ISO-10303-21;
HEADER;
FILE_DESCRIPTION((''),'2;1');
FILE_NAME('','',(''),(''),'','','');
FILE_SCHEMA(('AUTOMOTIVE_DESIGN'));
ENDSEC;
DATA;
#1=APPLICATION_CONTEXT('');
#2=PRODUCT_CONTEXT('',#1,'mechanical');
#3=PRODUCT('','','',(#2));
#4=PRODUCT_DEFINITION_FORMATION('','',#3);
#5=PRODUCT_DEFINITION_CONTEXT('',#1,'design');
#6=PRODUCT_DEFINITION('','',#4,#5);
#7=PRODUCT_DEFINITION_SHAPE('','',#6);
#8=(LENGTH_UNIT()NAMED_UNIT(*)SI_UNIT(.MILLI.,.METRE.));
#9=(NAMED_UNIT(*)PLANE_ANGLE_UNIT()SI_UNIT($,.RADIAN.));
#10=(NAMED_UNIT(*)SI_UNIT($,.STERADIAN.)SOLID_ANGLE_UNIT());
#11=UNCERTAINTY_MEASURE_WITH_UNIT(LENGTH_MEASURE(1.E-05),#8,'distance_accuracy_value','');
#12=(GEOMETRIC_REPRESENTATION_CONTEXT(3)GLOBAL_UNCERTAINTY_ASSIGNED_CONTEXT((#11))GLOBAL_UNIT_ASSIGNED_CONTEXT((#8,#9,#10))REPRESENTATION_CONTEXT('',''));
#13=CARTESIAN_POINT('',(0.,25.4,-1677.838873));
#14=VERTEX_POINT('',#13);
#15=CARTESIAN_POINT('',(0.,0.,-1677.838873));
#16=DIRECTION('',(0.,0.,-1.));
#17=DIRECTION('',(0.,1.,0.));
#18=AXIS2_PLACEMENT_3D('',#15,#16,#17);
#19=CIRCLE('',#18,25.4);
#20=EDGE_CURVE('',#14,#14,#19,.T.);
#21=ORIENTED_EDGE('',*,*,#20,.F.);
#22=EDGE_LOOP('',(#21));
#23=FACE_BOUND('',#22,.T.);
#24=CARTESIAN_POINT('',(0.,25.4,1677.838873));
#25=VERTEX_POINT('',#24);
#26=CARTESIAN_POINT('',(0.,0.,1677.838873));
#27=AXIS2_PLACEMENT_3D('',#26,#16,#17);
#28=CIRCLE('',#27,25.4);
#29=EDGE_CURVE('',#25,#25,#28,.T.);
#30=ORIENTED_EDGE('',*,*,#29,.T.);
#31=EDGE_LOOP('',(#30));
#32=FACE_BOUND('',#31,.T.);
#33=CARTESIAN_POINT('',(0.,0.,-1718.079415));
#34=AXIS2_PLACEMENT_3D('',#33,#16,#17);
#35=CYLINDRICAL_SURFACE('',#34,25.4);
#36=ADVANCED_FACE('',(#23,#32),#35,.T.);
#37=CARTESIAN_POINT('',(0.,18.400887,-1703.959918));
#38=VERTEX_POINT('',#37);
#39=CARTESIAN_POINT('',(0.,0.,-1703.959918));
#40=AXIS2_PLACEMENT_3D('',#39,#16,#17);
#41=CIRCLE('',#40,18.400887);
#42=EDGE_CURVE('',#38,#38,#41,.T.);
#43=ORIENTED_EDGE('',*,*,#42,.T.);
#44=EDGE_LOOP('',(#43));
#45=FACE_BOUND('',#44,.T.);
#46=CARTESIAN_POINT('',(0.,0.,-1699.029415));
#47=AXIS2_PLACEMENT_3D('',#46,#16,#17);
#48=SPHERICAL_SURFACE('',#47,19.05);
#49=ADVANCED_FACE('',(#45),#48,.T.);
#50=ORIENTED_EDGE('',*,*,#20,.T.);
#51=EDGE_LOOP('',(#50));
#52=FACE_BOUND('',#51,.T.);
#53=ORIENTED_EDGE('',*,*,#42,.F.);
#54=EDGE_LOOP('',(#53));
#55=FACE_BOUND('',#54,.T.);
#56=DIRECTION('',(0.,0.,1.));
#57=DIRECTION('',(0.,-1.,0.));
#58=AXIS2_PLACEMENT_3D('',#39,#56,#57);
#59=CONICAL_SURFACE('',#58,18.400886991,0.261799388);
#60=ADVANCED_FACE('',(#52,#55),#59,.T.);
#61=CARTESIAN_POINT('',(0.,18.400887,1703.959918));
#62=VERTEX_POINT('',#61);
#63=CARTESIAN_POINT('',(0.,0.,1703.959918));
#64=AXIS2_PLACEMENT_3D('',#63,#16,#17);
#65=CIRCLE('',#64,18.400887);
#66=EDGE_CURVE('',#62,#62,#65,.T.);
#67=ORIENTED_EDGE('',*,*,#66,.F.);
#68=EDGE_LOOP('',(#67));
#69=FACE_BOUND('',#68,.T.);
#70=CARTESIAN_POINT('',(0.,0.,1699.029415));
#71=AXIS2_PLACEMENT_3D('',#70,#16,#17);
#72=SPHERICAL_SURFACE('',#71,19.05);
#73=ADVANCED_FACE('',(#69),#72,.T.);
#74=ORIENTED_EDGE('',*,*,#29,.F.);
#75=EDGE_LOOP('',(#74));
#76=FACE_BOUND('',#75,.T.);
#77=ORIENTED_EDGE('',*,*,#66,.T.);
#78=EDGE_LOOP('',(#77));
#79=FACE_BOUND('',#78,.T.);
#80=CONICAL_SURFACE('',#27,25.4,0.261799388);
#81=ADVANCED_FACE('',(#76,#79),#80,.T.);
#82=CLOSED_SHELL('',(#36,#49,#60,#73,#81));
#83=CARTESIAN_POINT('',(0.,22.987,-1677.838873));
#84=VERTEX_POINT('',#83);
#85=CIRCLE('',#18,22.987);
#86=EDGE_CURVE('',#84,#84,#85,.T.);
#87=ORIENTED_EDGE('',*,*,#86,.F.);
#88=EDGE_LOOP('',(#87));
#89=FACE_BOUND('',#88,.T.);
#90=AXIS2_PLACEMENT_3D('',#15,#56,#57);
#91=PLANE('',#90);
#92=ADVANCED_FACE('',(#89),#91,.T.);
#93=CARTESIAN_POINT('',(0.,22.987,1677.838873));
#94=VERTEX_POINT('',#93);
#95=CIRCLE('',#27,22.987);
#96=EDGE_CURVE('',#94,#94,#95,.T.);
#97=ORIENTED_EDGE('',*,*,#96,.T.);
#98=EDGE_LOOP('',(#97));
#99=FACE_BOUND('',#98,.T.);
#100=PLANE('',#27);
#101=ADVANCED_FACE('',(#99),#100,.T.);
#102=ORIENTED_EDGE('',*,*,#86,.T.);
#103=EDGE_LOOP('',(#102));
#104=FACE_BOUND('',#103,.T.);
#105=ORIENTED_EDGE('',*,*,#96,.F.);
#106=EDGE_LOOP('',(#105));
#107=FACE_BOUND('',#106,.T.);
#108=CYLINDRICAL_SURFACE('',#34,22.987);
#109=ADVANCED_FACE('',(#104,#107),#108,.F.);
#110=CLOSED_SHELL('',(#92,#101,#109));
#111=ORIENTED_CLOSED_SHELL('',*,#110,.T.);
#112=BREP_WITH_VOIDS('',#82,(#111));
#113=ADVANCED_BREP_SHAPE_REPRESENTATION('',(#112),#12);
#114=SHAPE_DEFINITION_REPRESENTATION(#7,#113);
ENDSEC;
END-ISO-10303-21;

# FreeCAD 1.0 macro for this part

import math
import FreeCAD as App
import Part
import Sketcher

V = App.Vector
Q = App.Units.Quantity

doc = App.newDocument("Part")
body = doc.addObject("PartDesign::Body", "Body")

sketch1 = body.newObject("Sketcher::SketchObject", "Sketch")
sketch1.AttachmentSupport = (doc.getObject("YZ_Plane"), [""])
sketch1.MapMode = "FlatFace"
sketch1.addGeometry([
    Part.LineSegment(V(18.400887, -1703.959918, 0), V(25.4, -1677.838873, 0)),
    Part.LineSegment(V(25.4, -1677.838873, 0), V(25.4, 1677.838873, 0)),
    Part.LineSegment(V(25.4, 1677.838873, 0), V(18.400887, 1703.959918, 0)),
    Part.ArcOfCircle(Part.Circle(V(0, 1699.029415, 0), V(0, 0, 1), 19.05), math.radians(15), math.radians(90)),
    Part.LineSegment(V(0, 1718.079415, 0), V(0, 1677.838873, 0)),
    Part.LineSegment(V(0, 1677.838873, 0), V(22.987, 1677.838873, 0)),
    Part.LineSegment(V(22.987, 1677.838873, 0), V(22.987, -1677.838873, 0)),
    Part.LineSegment(V(22.987, -1677.838873, 0), V(0, -1677.838873, 0)),
    Part.LineSegment(V(0, -1677.838873, 0), V(0, -1718.079415, 0)),
    Part.ArcOfCircle(Part.Circle(V(0, -1699.029415, 0), V(0, 0, 1), 19.05), math.radians(-90), math.radians(-15)),
], False)
sketch1.addConstraint([
    Sketcher.Constraint("Coincident", 0, 2, 1, 1),
    Sketcher.Constraint("Coincident", 1, 2, 2, 1),
    Sketcher.Constraint("Tangent", 2, 2, 3, 1),
    Sketcher.Constraint("Coincident", 3, 2, 4, 1),
    Sketcher.Constraint("Coincident", 4, 2, 5, 1),
    Sketcher.Constraint("Coincident", 5, 2, 6, 1),
    Sketcher.Constraint("Coincident", 6, 2, 7, 1),
    Sketcher.Constraint("Coincident", 7, 2, 8, 1),
    Sketcher.Constraint("Coincident", 8, 2, 9, 1),
    Sketcher.Constraint("Tangent", 9, 2, 0, 1),
    Sketcher.Constraint("Vertical", 1),
    Sketcher.Constraint("Vertical", 4),
    Sketcher.Constraint("Horizontal", 5),
    Sketcher.Constraint("Vertical", 6),
    Sketcher.Constraint("Horizontal", 7),
    Sketcher.Constraint("Vertical", 8),
    Sketcher.Constraint("Equal", 3, 9),
    Sketcher.Constraint("Symmetric", 3, 3, 9, 3, -1, 1),
    Sketcher.Constraint("Symmetric", 4, 2, 7, 2, -1, 1),
    Sketcher.Constraint("Symmetric", 2, 2, 9, 2, -1),
    Sketcher.Constraint("PointOnObject", 3, 2, -2),
    Sketcher.Constraint("Horizontal", 1, 2, 4, 2),
    Sketcher.Constraint("Radius", 3, Q("0.75 in")),
    Sketcher.Constraint("DistanceX", -1, 1, 0, 2, Q("1 in")),
    Sketcher.Constraint("Angle", 0, Q("75 deg")),
    Sketcher.Constraint("DistanceX", 5, 1, 5, 2, Q("0.905 in")),
    Sketcher.Constraint("DistanceY", 1, 1, 1, 2, 3355.677745),
])
revolution = body.newObject("PartDesign::Revolution", "Revolution")
revolution.Profile = sketch1
revolution.ReferenceAxis = (sketch1, ["V_Axis"])
revolution.Angle = 360

doc.recompute()
